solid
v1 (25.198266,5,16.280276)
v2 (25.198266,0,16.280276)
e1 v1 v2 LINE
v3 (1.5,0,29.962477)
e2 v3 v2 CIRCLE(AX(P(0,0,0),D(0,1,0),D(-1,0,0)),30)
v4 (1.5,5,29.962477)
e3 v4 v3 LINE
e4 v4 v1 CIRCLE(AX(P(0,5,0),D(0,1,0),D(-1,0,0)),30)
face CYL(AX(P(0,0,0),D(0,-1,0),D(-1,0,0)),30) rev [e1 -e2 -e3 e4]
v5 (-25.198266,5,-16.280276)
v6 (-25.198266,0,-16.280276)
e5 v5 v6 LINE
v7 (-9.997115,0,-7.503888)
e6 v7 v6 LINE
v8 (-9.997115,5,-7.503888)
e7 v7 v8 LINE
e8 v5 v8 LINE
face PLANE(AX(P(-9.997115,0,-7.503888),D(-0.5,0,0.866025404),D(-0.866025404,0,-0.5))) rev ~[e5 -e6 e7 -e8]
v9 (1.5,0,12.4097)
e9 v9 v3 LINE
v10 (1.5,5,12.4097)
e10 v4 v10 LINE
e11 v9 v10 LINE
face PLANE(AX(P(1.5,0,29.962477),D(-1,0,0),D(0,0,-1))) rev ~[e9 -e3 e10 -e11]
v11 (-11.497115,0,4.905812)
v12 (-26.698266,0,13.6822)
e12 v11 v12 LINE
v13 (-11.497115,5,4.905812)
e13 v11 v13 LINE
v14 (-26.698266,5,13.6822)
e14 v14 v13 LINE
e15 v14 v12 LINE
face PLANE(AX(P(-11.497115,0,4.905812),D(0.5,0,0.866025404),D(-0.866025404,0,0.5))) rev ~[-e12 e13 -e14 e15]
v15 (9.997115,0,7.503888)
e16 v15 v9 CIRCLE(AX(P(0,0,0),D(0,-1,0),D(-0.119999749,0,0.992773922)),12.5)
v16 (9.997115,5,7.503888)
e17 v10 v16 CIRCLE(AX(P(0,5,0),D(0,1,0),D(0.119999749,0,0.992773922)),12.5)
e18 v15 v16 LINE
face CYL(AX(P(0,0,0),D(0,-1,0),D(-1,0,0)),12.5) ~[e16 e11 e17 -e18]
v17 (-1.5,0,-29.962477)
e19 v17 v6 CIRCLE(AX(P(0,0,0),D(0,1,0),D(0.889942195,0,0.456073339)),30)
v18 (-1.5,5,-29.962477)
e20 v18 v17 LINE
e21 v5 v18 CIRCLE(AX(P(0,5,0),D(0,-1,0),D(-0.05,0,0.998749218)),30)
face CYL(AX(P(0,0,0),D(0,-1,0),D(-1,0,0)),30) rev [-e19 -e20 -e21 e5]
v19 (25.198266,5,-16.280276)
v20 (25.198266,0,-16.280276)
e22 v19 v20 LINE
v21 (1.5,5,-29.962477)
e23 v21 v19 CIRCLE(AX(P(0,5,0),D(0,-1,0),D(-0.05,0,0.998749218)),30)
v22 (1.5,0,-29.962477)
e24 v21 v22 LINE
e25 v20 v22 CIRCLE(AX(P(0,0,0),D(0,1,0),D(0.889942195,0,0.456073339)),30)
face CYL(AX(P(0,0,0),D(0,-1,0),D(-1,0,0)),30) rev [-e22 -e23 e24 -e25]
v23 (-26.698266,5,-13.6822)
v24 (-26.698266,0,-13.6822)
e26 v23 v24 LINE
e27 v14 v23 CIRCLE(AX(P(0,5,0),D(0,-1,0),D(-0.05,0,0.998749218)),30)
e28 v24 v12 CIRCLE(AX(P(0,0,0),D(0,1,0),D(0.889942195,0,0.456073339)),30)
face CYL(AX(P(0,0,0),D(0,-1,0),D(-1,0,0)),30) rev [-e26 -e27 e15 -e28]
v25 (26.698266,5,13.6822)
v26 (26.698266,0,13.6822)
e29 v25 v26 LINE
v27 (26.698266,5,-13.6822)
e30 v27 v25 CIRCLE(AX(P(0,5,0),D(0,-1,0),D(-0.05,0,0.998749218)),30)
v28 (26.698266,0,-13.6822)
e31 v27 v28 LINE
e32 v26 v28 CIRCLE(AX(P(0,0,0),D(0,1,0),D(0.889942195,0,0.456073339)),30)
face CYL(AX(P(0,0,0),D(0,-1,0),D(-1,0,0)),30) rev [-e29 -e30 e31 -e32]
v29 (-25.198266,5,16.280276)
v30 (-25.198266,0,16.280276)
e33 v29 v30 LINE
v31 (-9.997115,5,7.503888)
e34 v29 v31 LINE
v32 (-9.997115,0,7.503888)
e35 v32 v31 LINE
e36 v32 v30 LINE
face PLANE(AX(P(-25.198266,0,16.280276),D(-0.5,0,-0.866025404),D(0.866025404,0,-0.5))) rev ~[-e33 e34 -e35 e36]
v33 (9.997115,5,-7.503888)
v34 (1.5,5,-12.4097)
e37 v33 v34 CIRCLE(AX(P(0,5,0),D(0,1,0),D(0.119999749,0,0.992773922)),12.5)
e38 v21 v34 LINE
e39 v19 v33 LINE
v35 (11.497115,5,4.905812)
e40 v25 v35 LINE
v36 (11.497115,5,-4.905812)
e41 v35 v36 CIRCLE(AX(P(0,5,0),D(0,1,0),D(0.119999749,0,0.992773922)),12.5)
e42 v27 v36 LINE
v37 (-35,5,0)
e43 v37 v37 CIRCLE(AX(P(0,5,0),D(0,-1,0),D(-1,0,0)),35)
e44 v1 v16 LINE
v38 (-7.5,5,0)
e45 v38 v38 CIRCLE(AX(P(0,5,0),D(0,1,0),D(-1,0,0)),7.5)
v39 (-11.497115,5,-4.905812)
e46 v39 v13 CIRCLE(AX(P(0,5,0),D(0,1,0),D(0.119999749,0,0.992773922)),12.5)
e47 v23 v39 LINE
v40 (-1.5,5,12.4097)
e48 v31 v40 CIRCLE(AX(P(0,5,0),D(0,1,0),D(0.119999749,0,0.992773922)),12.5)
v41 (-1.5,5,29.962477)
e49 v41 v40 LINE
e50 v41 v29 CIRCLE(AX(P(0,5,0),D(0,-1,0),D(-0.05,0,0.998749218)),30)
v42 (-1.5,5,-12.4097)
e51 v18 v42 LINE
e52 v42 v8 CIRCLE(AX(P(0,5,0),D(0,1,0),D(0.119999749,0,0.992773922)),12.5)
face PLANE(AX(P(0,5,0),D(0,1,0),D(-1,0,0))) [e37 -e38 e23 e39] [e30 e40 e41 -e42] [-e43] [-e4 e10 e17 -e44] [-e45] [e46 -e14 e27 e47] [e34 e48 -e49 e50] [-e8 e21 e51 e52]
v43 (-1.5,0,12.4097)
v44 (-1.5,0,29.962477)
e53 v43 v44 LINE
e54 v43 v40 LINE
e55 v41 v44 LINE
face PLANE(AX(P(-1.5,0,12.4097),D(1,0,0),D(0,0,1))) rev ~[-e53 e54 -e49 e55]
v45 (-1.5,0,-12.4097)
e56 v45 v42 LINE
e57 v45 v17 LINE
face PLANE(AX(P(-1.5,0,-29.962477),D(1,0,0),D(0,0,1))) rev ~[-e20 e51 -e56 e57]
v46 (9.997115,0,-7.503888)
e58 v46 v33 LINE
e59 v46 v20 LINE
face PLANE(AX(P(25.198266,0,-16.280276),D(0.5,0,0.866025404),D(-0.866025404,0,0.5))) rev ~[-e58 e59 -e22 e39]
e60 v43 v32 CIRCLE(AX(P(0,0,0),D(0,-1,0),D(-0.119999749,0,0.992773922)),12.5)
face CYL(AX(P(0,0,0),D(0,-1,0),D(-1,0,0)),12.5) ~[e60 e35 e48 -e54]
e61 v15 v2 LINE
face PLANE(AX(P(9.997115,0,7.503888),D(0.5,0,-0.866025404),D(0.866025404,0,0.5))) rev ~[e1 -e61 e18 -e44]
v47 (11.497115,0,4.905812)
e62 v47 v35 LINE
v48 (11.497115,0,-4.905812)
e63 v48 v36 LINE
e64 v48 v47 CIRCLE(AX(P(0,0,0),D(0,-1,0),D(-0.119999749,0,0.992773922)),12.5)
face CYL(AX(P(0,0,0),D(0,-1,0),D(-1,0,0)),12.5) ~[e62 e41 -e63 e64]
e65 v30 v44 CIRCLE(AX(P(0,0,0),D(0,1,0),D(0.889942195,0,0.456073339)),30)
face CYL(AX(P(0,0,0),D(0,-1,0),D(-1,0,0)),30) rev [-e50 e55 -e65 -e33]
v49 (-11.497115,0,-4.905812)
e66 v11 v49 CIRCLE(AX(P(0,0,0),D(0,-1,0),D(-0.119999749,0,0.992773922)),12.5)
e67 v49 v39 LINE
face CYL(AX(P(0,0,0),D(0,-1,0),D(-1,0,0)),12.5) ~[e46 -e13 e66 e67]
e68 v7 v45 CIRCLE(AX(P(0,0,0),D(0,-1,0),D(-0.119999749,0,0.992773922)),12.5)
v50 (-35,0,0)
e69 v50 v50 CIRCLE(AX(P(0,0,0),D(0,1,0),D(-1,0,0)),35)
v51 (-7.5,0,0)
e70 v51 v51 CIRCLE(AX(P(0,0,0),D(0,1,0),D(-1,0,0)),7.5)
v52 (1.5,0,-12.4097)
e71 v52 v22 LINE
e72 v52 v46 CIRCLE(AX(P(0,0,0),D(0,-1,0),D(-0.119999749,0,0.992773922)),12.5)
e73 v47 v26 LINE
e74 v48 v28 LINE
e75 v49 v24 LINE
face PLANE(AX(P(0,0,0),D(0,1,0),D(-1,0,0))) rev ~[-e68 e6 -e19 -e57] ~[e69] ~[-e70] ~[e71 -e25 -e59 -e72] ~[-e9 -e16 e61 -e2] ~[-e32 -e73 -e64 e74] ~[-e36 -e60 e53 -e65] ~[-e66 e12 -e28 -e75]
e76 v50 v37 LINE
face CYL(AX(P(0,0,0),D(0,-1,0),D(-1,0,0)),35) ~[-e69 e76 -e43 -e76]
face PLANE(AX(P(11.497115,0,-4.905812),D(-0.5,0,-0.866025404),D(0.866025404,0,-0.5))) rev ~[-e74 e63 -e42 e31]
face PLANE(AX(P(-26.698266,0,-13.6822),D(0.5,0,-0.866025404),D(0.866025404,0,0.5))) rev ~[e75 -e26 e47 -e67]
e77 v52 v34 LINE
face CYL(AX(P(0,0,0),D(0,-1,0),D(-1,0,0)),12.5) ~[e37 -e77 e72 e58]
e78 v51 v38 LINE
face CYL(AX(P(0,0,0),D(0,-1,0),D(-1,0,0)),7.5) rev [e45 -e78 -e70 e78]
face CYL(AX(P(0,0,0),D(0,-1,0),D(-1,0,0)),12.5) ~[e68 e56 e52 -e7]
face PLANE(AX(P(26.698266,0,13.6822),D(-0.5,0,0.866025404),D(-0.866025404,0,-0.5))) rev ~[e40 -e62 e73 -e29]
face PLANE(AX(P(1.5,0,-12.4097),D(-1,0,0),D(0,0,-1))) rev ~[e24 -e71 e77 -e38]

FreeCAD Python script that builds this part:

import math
import FreeCAD as App
import Part
import Sketcher

V = App.Vector

doc = App.newDocument("Part")
body = doc.addObject("PartDesign::Body", "Body")
body.AllowCompound = True

sketch1 = body.newObject("Sketcher::SketchObject", "Sketch")
sketch1.AttachmentSupport = (doc.getObject("XZ_Plane"), [""])
sketch1.MapMode = "FlatFace"
sketch1.addGeometry([
    Part.Circle(V(0, 0, 0), V(0, 0, 1), 35),
    Part.Circle(V(0, 0, 0), V(0, 0, 1), 30),
    Part.Circle(V(0, 0, 0), V(0, 0, 1), 12),
    Part.Circle(V(0, 0, 0), V(0, 0, 1), 8),
], False)
sketch1.addConstraint([
    Sketcher.Constraint("Coincident", 0, 3, -1, 1),
    Sketcher.Constraint("Coincident", 1, 3, -1, 1),
    Sketcher.Constraint("Coincident", 2, 3, -1, 1),
    Sketcher.Constraint("Coincident", 3, 3, -1, 1),
    Sketcher.Constraint("Diameter", 0, 70.0),
    Sketcher.Constraint("Diameter", 1, 60.0),
    Sketcher.Constraint("Diameter", 2, 25.0),
    Sketcher.Constraint("Diameter", 3, 15.0),
])
pad1 = body.newObject("PartDesign::Pad", "Pad")
pad1.Profile = sketch1
pad1.Length = 5
pad1.Reversed = True

sketch2 = body.newObject("Sketcher::SketchObject", "Sketch001")
sketch2.AttachmentSupport = (doc.getObject("XZ_Plane"), [""])
sketch2.MapMode = "FlatFace"
sketch2.addGeometry([
    Part.ArcOfCircle(Part.Circle(V(0, 0, 0), V(0, 0, 1), 12.5), math.radians(83.11), math.radians(96.89)),
    Part.LineSegment(V(1.5, 12.4, 0), V(1.5, 35, 0)),
    Part.LineSegment(V(1.5, 35, 0), V(-1.5, 35, 0)),
    Part.LineSegment(V(-1.5, 35, 0), V(-1.5, 12.4, 0)),
], False)
sketch2.addConstraint([
    Sketcher.Constraint("Coincident", 0, 1, 1, 1),
    Sketcher.Constraint("Coincident", 1, 2, 2, 1),
    Sketcher.Constraint("Coincident", 2, 2, 3, 1),
    Sketcher.Constraint("Coincident", 3, 2, 0, 2),
    Sketcher.Constraint("Vertical", 1),
    Sketcher.Constraint("Horizontal", 2),
    Sketcher.Constraint("Vertical", 3),
    Sketcher.Constraint("Coincident", 0, 3, -1, 1),
    Sketcher.Constraint("Horizontal", 0, 1, 3, 2),
    Sketcher.Constraint("DistanceX", 2, 2, 2, 1, 3.0),
    Sketcher.Constraint("Radius", 0, 12.5),
    Sketcher.Constraint("DistanceY", 1, 1, 1, 2, 22.558),
])
pad2 = body.newObject("PartDesign::Pad", "Pad001")
pad2.Profile = sketch2
pad2.Length = 5
pad2.Reversed = True
doc.recompute()

polarpattern = body.newObject("PartDesign::PolarPattern", "PolarPattern")
polarpattern.Originals = [pad2]
polarpattern.Axis = (doc.getObject("Y_Axis"), [""])
polarpattern.Angle = 360
polarpattern.Occurrences = 6
body.Tip = polarpattern

doc.recompute()
